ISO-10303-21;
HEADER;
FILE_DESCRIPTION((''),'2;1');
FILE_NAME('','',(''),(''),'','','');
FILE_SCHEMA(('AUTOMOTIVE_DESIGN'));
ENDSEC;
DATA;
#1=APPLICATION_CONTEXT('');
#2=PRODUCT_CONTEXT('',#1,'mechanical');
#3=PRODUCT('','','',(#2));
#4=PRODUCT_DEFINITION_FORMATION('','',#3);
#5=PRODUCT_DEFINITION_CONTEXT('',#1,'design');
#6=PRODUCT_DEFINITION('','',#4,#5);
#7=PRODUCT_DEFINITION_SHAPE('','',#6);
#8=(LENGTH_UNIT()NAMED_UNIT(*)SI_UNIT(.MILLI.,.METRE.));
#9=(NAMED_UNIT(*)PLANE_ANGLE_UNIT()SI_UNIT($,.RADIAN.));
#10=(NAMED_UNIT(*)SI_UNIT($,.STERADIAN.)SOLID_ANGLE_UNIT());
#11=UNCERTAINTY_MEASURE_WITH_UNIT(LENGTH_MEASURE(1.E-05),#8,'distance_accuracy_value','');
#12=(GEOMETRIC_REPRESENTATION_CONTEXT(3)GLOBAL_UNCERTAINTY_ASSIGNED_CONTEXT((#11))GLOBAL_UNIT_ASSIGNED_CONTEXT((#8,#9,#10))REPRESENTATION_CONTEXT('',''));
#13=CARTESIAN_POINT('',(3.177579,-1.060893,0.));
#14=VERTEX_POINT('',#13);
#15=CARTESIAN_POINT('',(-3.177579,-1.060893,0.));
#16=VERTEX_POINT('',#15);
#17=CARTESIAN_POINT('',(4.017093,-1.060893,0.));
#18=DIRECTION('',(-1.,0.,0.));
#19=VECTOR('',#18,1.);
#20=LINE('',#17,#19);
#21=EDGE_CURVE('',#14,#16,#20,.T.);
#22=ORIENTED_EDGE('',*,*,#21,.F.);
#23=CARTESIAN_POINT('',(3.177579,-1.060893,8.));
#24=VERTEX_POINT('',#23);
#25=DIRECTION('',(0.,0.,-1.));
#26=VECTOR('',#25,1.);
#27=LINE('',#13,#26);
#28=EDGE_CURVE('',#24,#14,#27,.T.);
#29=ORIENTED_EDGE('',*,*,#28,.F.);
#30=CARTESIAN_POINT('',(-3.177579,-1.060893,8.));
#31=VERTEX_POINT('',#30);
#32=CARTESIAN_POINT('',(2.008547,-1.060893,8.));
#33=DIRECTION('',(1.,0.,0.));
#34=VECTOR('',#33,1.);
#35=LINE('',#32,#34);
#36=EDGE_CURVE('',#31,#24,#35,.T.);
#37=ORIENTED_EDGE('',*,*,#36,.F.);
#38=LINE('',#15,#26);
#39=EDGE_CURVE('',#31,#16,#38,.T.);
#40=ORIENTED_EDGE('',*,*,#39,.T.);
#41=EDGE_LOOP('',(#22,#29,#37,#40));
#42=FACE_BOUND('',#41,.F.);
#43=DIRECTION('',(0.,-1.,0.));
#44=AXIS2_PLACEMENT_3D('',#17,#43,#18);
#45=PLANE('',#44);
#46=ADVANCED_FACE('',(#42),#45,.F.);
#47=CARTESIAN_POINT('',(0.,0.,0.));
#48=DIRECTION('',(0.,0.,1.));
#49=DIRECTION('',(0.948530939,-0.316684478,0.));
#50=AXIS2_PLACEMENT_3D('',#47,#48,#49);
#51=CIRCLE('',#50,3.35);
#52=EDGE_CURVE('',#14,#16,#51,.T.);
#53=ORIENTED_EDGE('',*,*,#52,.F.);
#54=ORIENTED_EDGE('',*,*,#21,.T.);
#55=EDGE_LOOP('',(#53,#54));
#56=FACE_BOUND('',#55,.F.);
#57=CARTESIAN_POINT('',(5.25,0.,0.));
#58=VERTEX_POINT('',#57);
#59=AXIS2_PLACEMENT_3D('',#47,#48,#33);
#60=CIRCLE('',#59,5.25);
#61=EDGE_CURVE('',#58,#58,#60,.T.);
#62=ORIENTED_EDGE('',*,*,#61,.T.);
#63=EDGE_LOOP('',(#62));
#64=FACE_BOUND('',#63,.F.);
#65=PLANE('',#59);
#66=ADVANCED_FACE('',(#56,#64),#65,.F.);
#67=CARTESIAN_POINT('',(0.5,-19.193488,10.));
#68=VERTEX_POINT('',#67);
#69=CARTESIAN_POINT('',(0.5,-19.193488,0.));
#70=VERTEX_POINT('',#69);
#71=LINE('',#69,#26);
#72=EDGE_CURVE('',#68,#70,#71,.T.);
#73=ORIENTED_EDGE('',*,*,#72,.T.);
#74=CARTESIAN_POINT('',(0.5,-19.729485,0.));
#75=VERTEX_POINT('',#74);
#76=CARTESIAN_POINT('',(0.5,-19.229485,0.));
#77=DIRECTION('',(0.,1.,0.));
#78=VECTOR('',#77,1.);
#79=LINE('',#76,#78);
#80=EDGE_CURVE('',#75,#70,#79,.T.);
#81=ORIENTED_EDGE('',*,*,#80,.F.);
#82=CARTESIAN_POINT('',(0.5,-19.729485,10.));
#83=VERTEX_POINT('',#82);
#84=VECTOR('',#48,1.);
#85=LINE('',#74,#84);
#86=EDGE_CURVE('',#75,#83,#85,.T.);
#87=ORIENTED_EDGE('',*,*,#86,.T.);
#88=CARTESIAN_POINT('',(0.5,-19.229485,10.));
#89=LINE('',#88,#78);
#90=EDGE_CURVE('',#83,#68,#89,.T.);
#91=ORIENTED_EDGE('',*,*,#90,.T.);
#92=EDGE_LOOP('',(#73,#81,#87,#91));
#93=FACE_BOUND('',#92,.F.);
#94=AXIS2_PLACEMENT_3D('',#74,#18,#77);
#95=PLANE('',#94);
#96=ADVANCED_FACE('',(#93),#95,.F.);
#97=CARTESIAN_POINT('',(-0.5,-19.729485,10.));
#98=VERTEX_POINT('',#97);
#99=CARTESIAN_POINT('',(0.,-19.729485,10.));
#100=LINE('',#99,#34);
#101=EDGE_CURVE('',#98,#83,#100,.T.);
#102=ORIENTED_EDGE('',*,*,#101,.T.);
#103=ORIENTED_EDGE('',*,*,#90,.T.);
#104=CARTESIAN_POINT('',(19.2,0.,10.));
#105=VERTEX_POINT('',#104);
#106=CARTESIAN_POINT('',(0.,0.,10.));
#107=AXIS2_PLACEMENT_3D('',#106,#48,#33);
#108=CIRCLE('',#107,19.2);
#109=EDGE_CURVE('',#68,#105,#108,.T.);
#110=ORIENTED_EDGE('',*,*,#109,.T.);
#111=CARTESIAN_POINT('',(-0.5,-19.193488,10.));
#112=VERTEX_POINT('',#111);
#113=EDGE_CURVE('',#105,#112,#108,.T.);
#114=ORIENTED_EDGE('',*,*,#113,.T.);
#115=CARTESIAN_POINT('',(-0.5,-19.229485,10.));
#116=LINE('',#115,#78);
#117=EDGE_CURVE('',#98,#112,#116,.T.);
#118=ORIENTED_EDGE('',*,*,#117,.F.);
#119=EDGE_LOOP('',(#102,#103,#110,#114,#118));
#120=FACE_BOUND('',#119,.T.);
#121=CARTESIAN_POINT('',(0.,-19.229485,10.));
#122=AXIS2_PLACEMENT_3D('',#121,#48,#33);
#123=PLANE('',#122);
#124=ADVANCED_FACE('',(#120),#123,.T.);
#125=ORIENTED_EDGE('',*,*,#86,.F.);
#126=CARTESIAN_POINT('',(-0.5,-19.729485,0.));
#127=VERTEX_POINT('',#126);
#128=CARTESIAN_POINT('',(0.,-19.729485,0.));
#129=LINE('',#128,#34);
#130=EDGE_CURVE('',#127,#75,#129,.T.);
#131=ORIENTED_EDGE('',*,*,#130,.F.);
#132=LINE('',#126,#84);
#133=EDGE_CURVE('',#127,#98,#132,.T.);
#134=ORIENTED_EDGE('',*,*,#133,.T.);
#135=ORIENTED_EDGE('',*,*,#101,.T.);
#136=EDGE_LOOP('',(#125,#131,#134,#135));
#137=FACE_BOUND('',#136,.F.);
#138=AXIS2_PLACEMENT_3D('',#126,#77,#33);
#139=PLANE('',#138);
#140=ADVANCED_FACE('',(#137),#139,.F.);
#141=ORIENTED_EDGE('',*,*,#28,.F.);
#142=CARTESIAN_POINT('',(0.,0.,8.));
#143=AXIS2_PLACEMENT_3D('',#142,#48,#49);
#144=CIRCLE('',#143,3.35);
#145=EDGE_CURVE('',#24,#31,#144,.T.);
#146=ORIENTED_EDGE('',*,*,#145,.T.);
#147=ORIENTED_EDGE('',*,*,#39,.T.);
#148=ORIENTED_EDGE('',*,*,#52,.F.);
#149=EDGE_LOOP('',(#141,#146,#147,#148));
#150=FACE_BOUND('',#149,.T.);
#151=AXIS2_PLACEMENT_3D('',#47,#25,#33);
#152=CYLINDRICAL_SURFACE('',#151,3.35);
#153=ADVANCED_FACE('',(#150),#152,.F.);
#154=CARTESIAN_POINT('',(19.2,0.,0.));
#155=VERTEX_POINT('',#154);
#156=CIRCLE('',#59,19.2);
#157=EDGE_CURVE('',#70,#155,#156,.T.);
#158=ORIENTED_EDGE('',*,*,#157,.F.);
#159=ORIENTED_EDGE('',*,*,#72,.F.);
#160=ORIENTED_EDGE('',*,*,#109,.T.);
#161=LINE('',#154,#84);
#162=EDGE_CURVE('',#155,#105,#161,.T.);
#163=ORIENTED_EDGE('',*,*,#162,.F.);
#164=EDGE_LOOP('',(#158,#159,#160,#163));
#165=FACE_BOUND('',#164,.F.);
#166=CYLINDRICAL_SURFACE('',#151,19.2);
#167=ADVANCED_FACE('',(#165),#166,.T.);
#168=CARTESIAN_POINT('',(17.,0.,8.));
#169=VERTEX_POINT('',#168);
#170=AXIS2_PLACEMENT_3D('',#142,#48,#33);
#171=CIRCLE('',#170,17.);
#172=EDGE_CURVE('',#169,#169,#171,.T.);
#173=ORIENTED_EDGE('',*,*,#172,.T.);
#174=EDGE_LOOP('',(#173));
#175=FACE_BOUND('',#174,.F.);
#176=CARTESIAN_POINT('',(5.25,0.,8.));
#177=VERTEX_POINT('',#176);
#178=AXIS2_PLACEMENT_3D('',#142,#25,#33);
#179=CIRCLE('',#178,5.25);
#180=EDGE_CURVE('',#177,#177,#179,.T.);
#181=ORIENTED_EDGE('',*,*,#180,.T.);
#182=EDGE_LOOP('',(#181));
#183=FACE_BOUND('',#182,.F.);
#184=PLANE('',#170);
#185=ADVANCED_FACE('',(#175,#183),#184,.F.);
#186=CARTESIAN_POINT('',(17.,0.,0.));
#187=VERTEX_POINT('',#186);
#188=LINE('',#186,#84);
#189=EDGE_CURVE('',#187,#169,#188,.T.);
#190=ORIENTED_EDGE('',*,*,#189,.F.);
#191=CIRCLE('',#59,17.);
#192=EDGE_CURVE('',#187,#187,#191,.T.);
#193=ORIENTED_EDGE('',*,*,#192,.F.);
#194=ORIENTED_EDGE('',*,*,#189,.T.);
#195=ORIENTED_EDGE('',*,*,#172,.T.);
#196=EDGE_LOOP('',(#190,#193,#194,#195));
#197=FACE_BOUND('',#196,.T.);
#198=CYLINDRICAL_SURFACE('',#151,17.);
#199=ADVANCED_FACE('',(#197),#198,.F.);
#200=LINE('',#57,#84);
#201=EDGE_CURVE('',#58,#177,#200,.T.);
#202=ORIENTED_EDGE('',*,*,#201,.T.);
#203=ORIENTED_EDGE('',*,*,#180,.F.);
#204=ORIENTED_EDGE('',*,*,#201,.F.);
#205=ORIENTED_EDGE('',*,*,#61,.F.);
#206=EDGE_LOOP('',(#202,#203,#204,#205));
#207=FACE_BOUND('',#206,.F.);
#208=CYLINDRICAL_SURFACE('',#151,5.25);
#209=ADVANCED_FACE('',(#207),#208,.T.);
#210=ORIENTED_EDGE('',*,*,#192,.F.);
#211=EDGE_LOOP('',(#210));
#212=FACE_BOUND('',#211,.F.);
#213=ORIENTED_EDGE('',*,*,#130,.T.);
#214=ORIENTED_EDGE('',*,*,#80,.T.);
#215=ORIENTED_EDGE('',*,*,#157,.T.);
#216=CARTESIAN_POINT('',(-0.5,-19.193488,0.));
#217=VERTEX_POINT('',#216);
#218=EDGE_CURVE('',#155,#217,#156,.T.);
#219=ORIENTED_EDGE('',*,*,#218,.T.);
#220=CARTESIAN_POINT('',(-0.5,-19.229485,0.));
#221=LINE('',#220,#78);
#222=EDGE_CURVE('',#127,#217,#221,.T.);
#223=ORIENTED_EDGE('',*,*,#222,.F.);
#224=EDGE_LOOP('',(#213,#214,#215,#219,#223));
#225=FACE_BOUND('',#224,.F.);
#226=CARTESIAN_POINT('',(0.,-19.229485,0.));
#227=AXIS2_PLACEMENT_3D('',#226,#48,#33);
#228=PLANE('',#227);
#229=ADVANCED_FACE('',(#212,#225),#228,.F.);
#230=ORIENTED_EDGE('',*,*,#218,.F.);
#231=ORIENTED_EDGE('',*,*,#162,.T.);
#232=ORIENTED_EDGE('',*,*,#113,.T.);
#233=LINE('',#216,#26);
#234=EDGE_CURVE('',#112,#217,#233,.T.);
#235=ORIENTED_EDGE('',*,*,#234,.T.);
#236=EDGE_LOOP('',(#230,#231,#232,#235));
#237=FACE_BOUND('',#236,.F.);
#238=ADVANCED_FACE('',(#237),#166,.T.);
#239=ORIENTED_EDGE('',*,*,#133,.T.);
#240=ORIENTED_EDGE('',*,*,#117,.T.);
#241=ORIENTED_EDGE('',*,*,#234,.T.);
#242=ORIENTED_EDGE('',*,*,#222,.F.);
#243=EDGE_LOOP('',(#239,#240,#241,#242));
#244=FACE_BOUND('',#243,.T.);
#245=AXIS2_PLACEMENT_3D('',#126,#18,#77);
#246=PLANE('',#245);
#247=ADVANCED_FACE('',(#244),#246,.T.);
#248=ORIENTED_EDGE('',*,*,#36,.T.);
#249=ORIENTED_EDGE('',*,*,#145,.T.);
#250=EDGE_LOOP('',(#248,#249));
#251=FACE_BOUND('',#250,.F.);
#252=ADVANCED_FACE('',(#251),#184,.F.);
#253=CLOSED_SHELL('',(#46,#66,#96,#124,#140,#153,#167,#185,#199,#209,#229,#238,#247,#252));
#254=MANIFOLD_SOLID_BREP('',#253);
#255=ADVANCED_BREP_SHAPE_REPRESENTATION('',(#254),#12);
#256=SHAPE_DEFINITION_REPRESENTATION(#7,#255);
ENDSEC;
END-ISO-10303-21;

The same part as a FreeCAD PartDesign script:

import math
import FreeCAD as App
import Part
import Sketcher

doc = App.newDocument("Part")
body = doc.addObject("PartDesign::Body", "Body")

sketch1 = doc.addObject("Sketcher::SketchObject", "Sketch")
body.addObject(sketch1)
sketch1.AttachmentSupport = (doc.XY_Plane, [""])
sketch1.MapMode = "FlatFace"
sketch1.addGeometry(Part.Circle(App.Vector(0, 0, 0), App.Vector(0, 0, 1), 19), False)
sketch1.addConstraint([
    Sketcher.Constraint("Coincident", 0, 3, -1, 1),
    Sketcher.Constraint("Diameter", 0, 38.4),
])
pad1 = doc.addObject("PartDesign::Pad", "Pad")
body.addObject(pad1)
pad1.Profile = sketch1
pad1.Length = 10

sketch2 = doc.addObject("Sketcher::SketchObject", "Sketch001")
body.addObject(sketch2)
sketch2.AttachmentSupport = (doc.XY_Plane, [""])
sketch2.MapMode = "FlatFace"
sketch2.addGeometry(Part.Circle(App.Vector(0, 0, 0), App.Vector(0, 0, 1), 17), False)
sketch2.addConstraint([
    Sketcher.Constraint("Coincident", 0, 3, -1, 1),
    Sketcher.Constraint("Diameter", 0, 34.0),
])
pocket1 = doc.addObject("PartDesign::Pocket", "Pocket")
body.addObject(pocket1)
pocket1.Profile = sketch2
pocket1.Length = 8
pocket1.Reversed = True

sketch3 = doc.addObject("Sketcher::SketchObject", "Sketch002")
body.addObject(sketch3)
sketch3.AttachmentSupport = (doc.XY_Plane, [""])
sketch3.MapMode = "FlatFace"
sketch3.addGeometry([
    Part.Circle(App.Vector(0, 0, 0), App.Vector(0, 0, 1), 5.2),
    Part.Circle(App.Vector(0, 0, 0), App.Vector(0, 0, 1), 3.4),
], False)
sketch3.addConstraint([
    Sketcher.Constraint("Coincident", 0, 3, -1, 1),
    Sketcher.Constraint("Coincident", 1, 3, -1, 1),
    Sketcher.Constraint("Diameter", 0, 10.5),
    Sketcher.Constraint("Diameter", 1, 6.7),
])
pad2 = doc.addObject("PartDesign::Pad", "Pad001")
body.addObject(pad2)
pad2.Profile = sketch3
pad2.Length = 10

sketch4 = doc.addObject("Sketcher::SketchObject", "Sketch003")
body.addObject(sketch4)
sketch4.AttachmentSupport = (doc.XY_Plane, [""])
sketch4.MapMode = "FlatFace"
sketch4.addGeometry([
    Part.LineSegment(App.Vector(4, -1.1, 0), App.Vector(-4, -1.1, 0)),
    Part.ArcOfCircle(Part.Circle(App.Vector(0, 0.2, 0), App.Vector(0, 0, 1), 4.2), math.radians(-162), math.radians(-18)),
], False)
sketch4.addConstraint([
    Sketcher.Constraint("Coincident", 0, 1, 1, 2),
    Sketcher.Constraint("Coincident", 1, 1, 0, 2),
    Sketcher.Constraint("Horizontal", 0),
    Sketcher.Constraint("Radius", 1, 4.212037),
    Sketcher.Constraint("DistanceX", 0, 2, 0, 1, 8.010877),
    Sketcher.Constraint("DistanceX", -1, 1, 1, 3, 0.011654),
    Sketcher.Constraint("DistanceY", -1, 1, 1, 3, 0.242073),
])
pad3 = doc.addObject("PartDesign::Pad", "Pad002")
body.addObject(pad3)
pad3.Profile = sketch4
pad3.Length = 9

sketch5 = doc.addObject("Sketcher::SketchObject", "Sketch004")
body.addObject(sketch5)
sketch5.AttachmentSupport = (doc.XY_Plane, [""])
sketch5.MapMode = "FlatFace"
sketch5.addGeometry([
    Part.LineSegment(App.Vector(-0.5, -18.7, 0), App.Vector(-0.5, -19.7, 0)),
    Part.LineSegment(App.Vector(-0.5, -19.7, 0), App.Vector(0.5, -19.7, 0)),
    Part.LineSegment(App.Vector(0.5, -19.7, 0), App.Vector(0.5, -18.7, 0)),
    Part.LineSegment(App.Vector(0.5, -18.7, 0), App.Vector(-0.5, -18.7, 0)),
], False)
sketch5.addConstraint([
    Sketcher.Constraint("Coincident", 0, 2, 1, 1),
    Sketcher.Constraint("Coincident", 1, 2, 2, 1),
    Sketcher.Constraint("Coincident", 2, 2, 3, 1),
    Sketcher.Constraint("Coincident", 3, 2, 0, 1),
    Sketcher.Constraint("Vertical", 0),
    Sketcher.Constraint("Horizontal", 1),
    Sketcher.Constraint("Vertical", 2),
    Sketcher.Constraint("Horizontal", 3),
    Sketcher.Constraint("Equal", 3, 0),
    Sketcher.Constraint("DistanceX", 1, 1, 1, 2, 1.0),
    Sketcher.Constraint("DistanceX", 0, 2, -1, 1, 0.5),
    Sketcher.Constraint("DistanceY", 0, 2, -1, 1, 19.729485),
])
pad4 = doc.addObject("PartDesign::Pad", "Pad003")
body.addObject(pad4)
pad4.Profile = sketch5
pad4.Length = 10

doc.recompute()
